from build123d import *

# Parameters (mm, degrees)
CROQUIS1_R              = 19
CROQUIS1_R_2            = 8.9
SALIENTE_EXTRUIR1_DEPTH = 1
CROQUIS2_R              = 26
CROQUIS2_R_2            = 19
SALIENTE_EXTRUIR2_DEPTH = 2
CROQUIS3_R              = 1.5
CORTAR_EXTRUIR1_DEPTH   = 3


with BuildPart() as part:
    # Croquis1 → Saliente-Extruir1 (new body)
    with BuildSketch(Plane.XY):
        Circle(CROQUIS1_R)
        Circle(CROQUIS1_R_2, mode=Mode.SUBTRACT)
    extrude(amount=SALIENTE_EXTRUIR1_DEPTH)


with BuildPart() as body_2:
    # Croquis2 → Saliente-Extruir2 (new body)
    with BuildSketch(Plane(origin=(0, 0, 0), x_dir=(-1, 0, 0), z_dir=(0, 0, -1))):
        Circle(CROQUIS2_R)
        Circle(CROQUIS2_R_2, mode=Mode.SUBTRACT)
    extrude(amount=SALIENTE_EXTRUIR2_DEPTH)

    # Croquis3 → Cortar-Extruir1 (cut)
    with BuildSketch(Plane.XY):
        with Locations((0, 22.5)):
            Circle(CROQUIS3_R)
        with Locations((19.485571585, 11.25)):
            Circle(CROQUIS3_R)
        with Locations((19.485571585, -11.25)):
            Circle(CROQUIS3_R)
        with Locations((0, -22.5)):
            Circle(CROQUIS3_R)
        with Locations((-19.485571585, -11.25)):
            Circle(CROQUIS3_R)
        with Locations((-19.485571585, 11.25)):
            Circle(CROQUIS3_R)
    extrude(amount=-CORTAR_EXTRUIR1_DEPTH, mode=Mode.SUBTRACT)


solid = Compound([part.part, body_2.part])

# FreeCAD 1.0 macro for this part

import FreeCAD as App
import Part
import Sketcher
Q = App.Units.Quantity

doc = App.newDocument("Part")
body = doc.addObject("PartDesign::Body", "Body")

# Sketch on XY plane
sketch1 = body.newObject("Sketcher::SketchObject", "Sketch")
sketch1.AttachmentSupport = (doc.getObject("XY_Plane"), [""])
sketch1.MapMode = "FlatFace"
sketch1.addGeometry([
    Part.Circle(App.Vector(0, 0, 0), App.Vector(0, 0, 1), 19),
    Part.Circle(App.Vector(0, 0, 0), App.Vector(0, 0, 1), 8.9),
], False)
sketch1.addConstraint([
    Sketcher.Constraint("Coincident", 0, 3, -1, 1),
    Sketcher.Constraint("Coincident", 1, 3, -1, 1),
    Sketcher.Constraint("Diameter", 0, Q("38 mm")),
    Sketcher.Constraint("Diameter", 1, Q("17.8 mm")),
])
pad1 = body.newObject("PartDesign::Pad", "Pad")
pad1.Profile = sketch1
pad1.Length = 1
body2 = doc.addObject("PartDesign::Body", "Body001")

# Sketch on XY plane
sketch2 = body2.newObject("Sketcher::SketchObject", "Sketch001")
sketch2.AttachmentSupport = (doc.getObject("XY_Plane001"), [""])
sketch2.MapMode = "FlatFace"
sketch2.addGeometry([
    Part.Circle(App.Vector(0, 0, 0), App.Vector(0, 0, 1), 26),
    Part.Circle(App.Vector(0, 0, 0), App.Vector(0, 0, 1), 19),
], False)
sketch2.addConstraint([
    Sketcher.Constraint("Coincident", 0, 3, -1, 1),
    Sketcher.Constraint("Coincident", 1, 3, -1, 1),
    Sketcher.Constraint("Diameter", 0, Q("52 mm")),
    Sketcher.Constraint("Diameter", 1, Q("38 mm")),
])
pad2 = body2.newObject("PartDesign::Pad", "Pad001")
pad2.Profile = sketch2
pad2.Length = 2
pad2.Reversed = True

# Sketch on XY plane
sketch3 = body2.newObject("Sketcher::SketchObject", "Sketch002")
sketch3.AttachmentSupport = (doc.getObject("XY_Plane001"), [""])
sketch3.MapMode = "FlatFace"
sketch3.addGeometry([
    Part.Circle(App.Vector(0, 22.5, 0), App.Vector(0, 0, 1), 1.5),  # 0
    Part.Circle(App.Vector(19.485572, 11.25, 0), App.Vector(0, 0, 1), 1.5),  # 1
    Part.Circle(App.Vector(19.485572, -11.25, 0), App.Vector(0, 0, 1), 1.5),  # 2
    Part.Circle(App.Vector(0, -22.5, 0), App.Vector(0, 0, 1), 1.5),  # 3
    Part.Circle(App.Vector(-19.485572, -11.25, 0), App.Vector(0, 0, 1), 1.5),  # 4
    Part.Circle(App.Vector(-19.485572, 11.25, 0), App.Vector(0, 0, 1), 1.5),  # 5
], False)
sketch3.addConstraint([
    Sketcher.Constraint("Equal", 0, 1),
    Sketcher.Constraint("Equal", 1, 2),
    Sketcher.Constraint("Equal", 2, 3),
    Sketcher.Constraint("Equal", 3, 4),
    Sketcher.Constraint("Equal", 4, 5),
    Sketcher.Constraint("Symmetric", 0, 3, 3, 3, -1, 1),
    Sketcher.Constraint("Symmetric", 1, 3, 4, 3, -1, 1),
    Sketcher.Constraint("Symmetric", 2, 3, 5, 3, -1, 1),
    Sketcher.Constraint("Symmetric", 2, 3, 4, 3, -2),
    Sketcher.Constraint("PointOnObject", 0, 3, -2),
    Sketcher.Constraint("Diameter", 0, Q("3 mm")),
    Sketcher.Constraint("DistanceY", 3, 3, 0, 3, Q("45 mm")),
    Sketcher.Constraint("DistanceY", 2, 3, 1, 3, Q("22.5 mm")),
    Sketcher.Constraint("DistanceX", -1, 1, 1, 3, Q("19.485572 mm")),
])
pocket1 = body2.newObject("PartDesign::Pocket", "Pocket")
pocket1.Profile = sketch3
pocket1.Length = 3

doc.recompute()
